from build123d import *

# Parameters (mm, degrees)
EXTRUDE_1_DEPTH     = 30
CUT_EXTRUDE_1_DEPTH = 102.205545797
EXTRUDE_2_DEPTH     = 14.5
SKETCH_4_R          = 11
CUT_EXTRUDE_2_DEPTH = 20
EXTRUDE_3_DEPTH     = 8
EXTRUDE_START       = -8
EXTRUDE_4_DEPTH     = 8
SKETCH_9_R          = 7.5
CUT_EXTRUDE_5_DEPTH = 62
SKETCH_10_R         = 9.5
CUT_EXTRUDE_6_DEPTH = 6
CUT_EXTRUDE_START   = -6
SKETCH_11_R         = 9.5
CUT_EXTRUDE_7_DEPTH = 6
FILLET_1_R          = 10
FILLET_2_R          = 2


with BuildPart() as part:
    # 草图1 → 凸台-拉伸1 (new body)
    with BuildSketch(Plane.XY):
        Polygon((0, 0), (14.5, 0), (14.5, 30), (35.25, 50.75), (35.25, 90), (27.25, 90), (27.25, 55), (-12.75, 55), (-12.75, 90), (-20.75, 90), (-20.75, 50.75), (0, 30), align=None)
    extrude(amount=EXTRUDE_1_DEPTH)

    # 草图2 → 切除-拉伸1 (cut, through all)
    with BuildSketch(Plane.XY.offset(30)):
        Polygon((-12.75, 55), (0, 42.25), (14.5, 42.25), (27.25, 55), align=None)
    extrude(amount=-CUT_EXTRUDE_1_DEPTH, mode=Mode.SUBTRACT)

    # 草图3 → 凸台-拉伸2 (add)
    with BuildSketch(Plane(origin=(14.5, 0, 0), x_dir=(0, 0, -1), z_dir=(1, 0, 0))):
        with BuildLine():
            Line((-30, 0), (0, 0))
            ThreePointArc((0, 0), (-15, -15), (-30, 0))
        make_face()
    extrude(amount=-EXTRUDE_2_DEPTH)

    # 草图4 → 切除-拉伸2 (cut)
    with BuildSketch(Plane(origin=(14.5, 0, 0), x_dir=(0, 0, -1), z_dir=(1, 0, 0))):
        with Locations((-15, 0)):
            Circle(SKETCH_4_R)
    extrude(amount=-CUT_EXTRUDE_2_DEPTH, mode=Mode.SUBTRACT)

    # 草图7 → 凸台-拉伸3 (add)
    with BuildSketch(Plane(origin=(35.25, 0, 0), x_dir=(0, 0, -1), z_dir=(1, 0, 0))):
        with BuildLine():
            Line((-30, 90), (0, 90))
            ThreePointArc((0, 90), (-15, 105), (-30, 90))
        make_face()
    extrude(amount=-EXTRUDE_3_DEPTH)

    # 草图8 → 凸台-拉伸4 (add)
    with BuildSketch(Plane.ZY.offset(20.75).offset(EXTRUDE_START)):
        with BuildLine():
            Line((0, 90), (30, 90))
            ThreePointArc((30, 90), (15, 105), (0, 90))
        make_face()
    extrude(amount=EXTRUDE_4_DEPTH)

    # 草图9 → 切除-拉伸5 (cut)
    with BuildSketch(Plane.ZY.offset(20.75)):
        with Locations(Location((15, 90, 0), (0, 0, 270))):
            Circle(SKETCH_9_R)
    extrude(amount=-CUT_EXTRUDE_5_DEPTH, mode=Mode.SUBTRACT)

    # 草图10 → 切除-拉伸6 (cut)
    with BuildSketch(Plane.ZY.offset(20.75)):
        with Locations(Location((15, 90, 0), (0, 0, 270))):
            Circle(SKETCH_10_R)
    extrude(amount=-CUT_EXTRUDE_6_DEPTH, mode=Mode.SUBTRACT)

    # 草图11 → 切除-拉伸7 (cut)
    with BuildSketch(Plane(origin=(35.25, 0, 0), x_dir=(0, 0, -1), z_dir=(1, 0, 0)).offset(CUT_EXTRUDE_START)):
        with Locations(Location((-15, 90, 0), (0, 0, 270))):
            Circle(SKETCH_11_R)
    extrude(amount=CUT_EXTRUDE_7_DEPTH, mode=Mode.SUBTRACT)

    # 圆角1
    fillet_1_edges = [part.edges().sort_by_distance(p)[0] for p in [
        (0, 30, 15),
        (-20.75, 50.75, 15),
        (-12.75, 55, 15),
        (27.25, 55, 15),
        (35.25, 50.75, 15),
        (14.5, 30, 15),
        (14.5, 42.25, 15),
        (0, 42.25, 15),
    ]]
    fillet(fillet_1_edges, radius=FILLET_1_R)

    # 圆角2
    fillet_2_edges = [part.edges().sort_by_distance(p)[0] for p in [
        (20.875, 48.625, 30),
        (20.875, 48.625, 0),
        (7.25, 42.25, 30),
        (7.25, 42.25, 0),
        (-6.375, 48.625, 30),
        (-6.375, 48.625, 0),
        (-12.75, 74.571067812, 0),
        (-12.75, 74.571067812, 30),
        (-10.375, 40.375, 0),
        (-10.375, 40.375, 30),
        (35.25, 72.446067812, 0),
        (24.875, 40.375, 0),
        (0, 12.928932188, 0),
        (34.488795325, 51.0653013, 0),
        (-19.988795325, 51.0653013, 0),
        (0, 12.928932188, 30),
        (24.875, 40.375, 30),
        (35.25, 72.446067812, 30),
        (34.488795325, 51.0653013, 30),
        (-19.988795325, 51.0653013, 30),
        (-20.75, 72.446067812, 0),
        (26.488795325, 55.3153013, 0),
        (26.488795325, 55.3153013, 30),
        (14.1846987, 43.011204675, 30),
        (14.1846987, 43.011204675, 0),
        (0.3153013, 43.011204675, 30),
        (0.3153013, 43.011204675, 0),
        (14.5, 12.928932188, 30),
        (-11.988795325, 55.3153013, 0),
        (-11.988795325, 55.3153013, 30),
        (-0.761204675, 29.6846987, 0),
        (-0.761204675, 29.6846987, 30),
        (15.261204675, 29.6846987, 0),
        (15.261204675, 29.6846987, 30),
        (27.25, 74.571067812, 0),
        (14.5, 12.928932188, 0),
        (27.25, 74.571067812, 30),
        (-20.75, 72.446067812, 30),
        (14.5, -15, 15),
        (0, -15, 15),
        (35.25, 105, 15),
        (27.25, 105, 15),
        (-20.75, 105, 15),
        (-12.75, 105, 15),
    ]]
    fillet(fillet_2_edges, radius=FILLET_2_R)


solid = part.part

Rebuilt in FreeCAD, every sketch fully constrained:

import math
import FreeCAD as App
import Part
import Sketcher

V = App.Vector


def edges_at(feature, points):
    """Names of the edges that pass closest to the given points."""
    edges = feature.Shape.Edges
    near = lambda p: min(range(len(edges)), key=lambda i: edges[i].distToShape(Part.Vertex(*p))[0])
    return sorted({f"Edge{near(p) + 1}" for p in points})


def add_polygon(sketch, points):
    """Adds a closed chain of lines whose ends are joined by coincident constraints."""
    first, n = sketch.GeometryCount, len(points)
    for a, b in zip(points, points[1:] + points[:1]):
        sketch.addGeometry(Part.LineSegment(App.Vector(*a, 0), App.Vector(*b, 0)), False)
    for i in range(n):
        sketch.addConstraint(Sketcher.Constraint("Coincident", first + i, 2, first + (i + 1) % n, 1))

doc = App.newDocument("Part")
body = doc.addObject("PartDesign::Body", "Body")

# Sketch on XY plane
sketch1 = body.newObject("Sketcher::SketchObject", "Sketch")
sketch1.AttachmentSupport = (doc.getObject("XY_Plane"), [""])
sketch1.MapMode = "FlatFace"
add_polygon(sketch1, [(0, 0), (14, 0), (14, 30), (35, 51), (35, 90), (27, 90), (27, 55), (-13, 55), (-13, 90), (-21, 90), (-21, 51), (0, 30)])  # lines 0-11
sketch1.addConstraint([
    Sketcher.Constraint("Horizontal", 0),
    Sketcher.Constraint("Vertical", 1),
    Sketcher.Constraint("Vertical", 3),
    Sketcher.Constraint("Horizontal", 4),
    Sketcher.Constraint("Vertical", 5),
    Sketcher.Constraint("Horizontal", 6),
    Sketcher.Constraint("Vertical", 7),
    Sketcher.Constraint("Horizontal", 8),
    Sketcher.Constraint("Vertical", 9),
    Sketcher.Constraint("Vertical", 11),
    Sketcher.Constraint("Coincident", 11, 2, -1, 1),
    Sketcher.Constraint("Perpendicular", 2, 10),
    Sketcher.Constraint("Horizontal", 4, 2, 7, 2),
    Sketcher.Constraint("Horizontal", 2, 2, 9, 2),
    Sketcher.Constraint("Horizontal", 1, 2, 10, 2),
    Sketcher.Constraint("Equal", 4, 8),
    Sketcher.Constraint("Equal", 2, 10),
    Sketcher.Constraint("DistanceX", 4, 2, 4, 1, 8.0),
    Sketcher.Constraint("DistanceX", 6, 2, 6, 1, 40.0),
    Sketcher.Constraint("DistanceY", 1, 1, 1, 2, 30.0),
    Sketcher.Constraint("DistanceY", 5, 2, 5, 1, 35.0),
    Sketcher.Constraint("DistanceX", 0, 1, 0, 2, 14.5),
    Sketcher.Constraint("DistanceY", -1, 1, 3, 2, 90.0),
])
pad1 = body.newObject("PartDesign::Pad", "Pad")
pad1.Profile = sketch1
pad1.Length = 30

# Sketch on XY plane
sketch2 = body.newObject("Sketcher::SketchObject", "Sketch001")
sketch2.AttachmentSupport = (doc.getObject("XY_Plane"), [""])
sketch2.MapMode = "FlatFace"
sketch2.AttachmentOffset = App.Placement(V(0, 0, 30), App.Rotation())
add_polygon(sketch2, [(-13, 55), (0, 42), (14, 42), (27, 55)])  # lines 0-3
sketch2.addConstraint([
    Sketcher.Constraint("Horizontal", 1),
    Sketcher.Constraint("Horizontal", 3),
    Sketcher.Constraint("PointOnObject", 0, 2, -2),
    Sketcher.Constraint("Perpendicular", 0, 2),
    Sketcher.Constraint("Equal", 0, 2),
    Sketcher.Constraint("DistanceX", 3, 2, 3, 1, 40.0),
    Sketcher.Constraint("DistanceX", 1, 1, 1, 2, 14.5),
    Sketcher.Constraint("DistanceY", -1, 1, 2, 2, 55.0),
])
pocket1 = body.newObject("PartDesign::Pocket", "Pocket")
pocket1.Profile = sketch2
pocket1.Type = "ThroughAll"

# Sketch on YZ plane
sketch3 = body.newObject("Sketcher::SketchObject", "Sketch002")
sketch3.AttachmentSupport = (doc.getObject("YZ_Plane"), [""])
sketch3.MapMode = "FlatFace"
sketch3.AttachmentOffset = App.Placement(V(0, 0, 14.5), App.Rotation())
sketch3.addGeometry([
    Part.LineSegment(V(0, 0, 0), V(0, 30, 0)),
    Part.ArcOfCircle(Part.Circle(V(0, 15, 0), V(0, 0, 1), 15), math.radians(90), math.radians(270)),
], False)
sketch3.addConstraint([
    Sketcher.Constraint("Coincident", 0, 1, 1, 2),
    Sketcher.Constraint("Coincident", 1, 1, 0, 2),
    Sketcher.Constraint("Vertical", 0),
    Sketcher.Constraint("Coincident", 0, 1, -1, 1),
    Sketcher.Constraint("PointOnObject", 1, 3, -2),
    Sketcher.Constraint("Radius", 1, 15.0),
])
pad2 = body.newObject("PartDesign::Pad", "Pad001")
pad2.Profile = sketch3
pad2.Length = 14.5
pad2.Reversed = True

# Sketch on YZ plane
sketch4 = body.newObject("Sketcher::SketchObject", "Sketch003")
sketch4.AttachmentSupport = (doc.getObject("YZ_Plane"), [""])
sketch4.MapMode = "FlatFace"
sketch4.AttachmentOffset = App.Placement(V(0, 0, 14.5), App.Rotation())
sketch4.addGeometry(Part.Circle(V(0, 15, 0), V(0, 0, 1), 11), False)
sketch4.addConstraint([
    Sketcher.Constraint("PointOnObject", 0, 3, -2),
    Sketcher.Constraint("Diameter", 0, 22.0),
    Sketcher.Constraint("DistanceY", -1, 1, 0, 3, 15.0),
])
pocket2 = body.newObject("PartDesign::Pocket", "Pocket001")
pocket2.Profile = sketch4
pocket2.Length = 20

# Sketch on YZ plane
sketch5 = body.newObject("Sketcher::SketchObject", "Sketch004")
sketch5.AttachmentSupport = (doc.getObject("YZ_Plane"), [""])
sketch5.MapMode = "FlatFace"
sketch5.AttachmentOffset = App.Placement(V(0, 0, 35.25), App.Rotation())
sketch5.addGeometry([
    Part.LineSegment(V(90, 30, 0), V(90, 0, 0)),
    Part.ArcOfCircle(Part.Circle(V(90, 15, 0), V(0, 0, 1), 15), math.radians(-90), math.radians(90)),
], False)
sketch5.addConstraint([
    Sketcher.Constraint("Coincident", 0, 1, 1, 2),
    Sketcher.Constraint("Coincident", 1, 1, 0, 2),
    Sketcher.Constraint("Vertical", 0),
    Sketcher.Constraint("PointOnObject", 1, 1, -1),
    Sketcher.Constraint("Vertical", 1, 3, 0, 1),
    Sketcher.Constraint("Radius", 1, 15.0),
    Sketcher.Constraint("DistanceX", -1, 1, 1, 3, 90.0),
])
pad3 = body.newObject("PartDesign::Pad", "Pad002")
pad3.Profile = sketch5
pad3.Length = 8
pad3.Reversed = True

# Sketch on YZ plane
sketch6 = body.newObject("Sketcher::SketchObject", "Sketch005")
sketch6.AttachmentSupport = (doc.getObject("YZ_Plane"), [""])
sketch6.MapMode = "FlatFace"
sketch6.AttachmentOffset = App.Placement(V(0, 0, -12.75), App.Rotation())
sketch6.addGeometry([
    Part.LineSegment(V(90, 0, 0), V(90, 30, 0)),
    Part.ArcOfCircle(Part.Circle(V(90, 15, 0), V(0, 0, 1), 15), math.radians(-90), math.radians(90)),
], False)
sketch6.addConstraint([
    Sketcher.Constraint("Coincident", 0, 1, 1, 1),
    Sketcher.Constraint("Coincident", 1, 2, 0, 2),
    Sketcher.Constraint("Vertical", 0),
    Sketcher.Constraint("PointOnObject", 0, 1, -1),
    Sketcher.Constraint("Vertical", 1, 3, 0, 1),
    Sketcher.Constraint("Radius", 1, 15.0),
    Sketcher.Constraint("DistanceX", -1, 1, 1, 3, 90.0),
])
pad4 = body.newObject("PartDesign::Pad", "Pad003")
pad4.Profile = sketch6
pad4.Length = 8
pad4.Reversed = True

# Sketch on YZ plane
sketch7 = body.newObject("Sketcher::SketchObject", "Sketch006")
sketch7.AttachmentSupport = (doc.getObject("YZ_Plane"), [""])
sketch7.MapMode = "FlatFace"
sketch7.AttachmentOffset = App.Placement(V(0, 0, -20.75), App.Rotation())
sketch7.addGeometry(Part.Circle(V(90, 15, 0), V(0, 0, 1), 8), False)
sketch7.addConstraint([
    Sketcher.Constraint("Diameter", 0, 15.0),
    Sketcher.Constraint("DistanceX", -1, 1, 0, 3, 90.0),
    Sketcher.Constraint("DistanceY", -1, 1, 0, 3, 15.0),
])
pocket3 = body.newObject("PartDesign::Pocket", "Pocket002")
pocket3.Profile = sketch7
pocket3.Length = 62
pocket3.Reversed = True

# Sketch on YZ plane
sketch8 = body.newObject("Sketcher::SketchObject", "Sketch007")
sketch8.AttachmentSupport = (doc.getObject("YZ_Plane"), [""])
sketch8.MapMode = "FlatFace"
sketch8.AttachmentOffset = App.Placement(V(0, 0, -20.75), App.Rotation())
sketch8.addGeometry(Part.Circle(V(90, 15, 0), V(0, 0, 1), 10), False)
sketch8.addConstraint([
    Sketcher.Constraint("Diameter", 0, 19.0),
    Sketcher.Constraint("DistanceX", -1, 1, 0, 3, 90.0),
    Sketcher.Constraint("DistanceY", -1, 1, 0, 3, 15.0),
])
pocket4 = body.newObject("PartDesign::Pocket", "Pocket003")
pocket4.Profile = sketch8
pocket4.Length = 6
pocket4.Reversed = True

# Sketch on YZ plane
sketch9 = body.newObject("Sketcher::SketchObject", "Sketch008")
sketch9.AttachmentSupport = (doc.getObject("YZ_Plane"), [""])
sketch9.MapMode = "FlatFace"
sketch9.AttachmentOffset = App.Placement(V(0, 0, 29.25), App.Rotation())
sketch9.addGeometry(Part.Circle(V(90, 15, 0), V(0, 0, 1), 10), False)
sketch9.addConstraint([
    Sketcher.Constraint("Diameter", 0, 19.0),
    Sketcher.Constraint("DistanceX", -1, 1, 0, 3, 90.0),
    Sketcher.Constraint("DistanceY", -1, 1, 0, 3, 15.0),
])
pocket5 = body.newObject("PartDesign::Pocket", "Pocket004")
pocket5.Profile = sketch9
pocket5.Length = 6
pocket5.Reversed = True
doc.recompute()

fillet = body.newObject("PartDesign::Fillet", "Fillet")
fillet.Base = (pocket5, edges_at(pocket5, [
    (0, 30, 15),
    (-20.75, 50.75, 15),
    (-12.75, 55, 15),
    (27.25, 55, 15),
    (35.25, 50.75, 15),
    (14.5, 30, 15),
    (14.5, 42.25, 15),
    (0, 42.25, 15),
]))
fillet.Radius = 10
doc.recompute()

fillet2 = body.newObject("PartDesign::Fillet", "Fillet001")
fillet2.Base = (fillet, edges_at(fillet, [
    (20.875, 48.625, 30),
    (20.875, 48.625, 0),
    (7.25, 42.25, 30),
    (7.25, 42.25, 0),
    (-6.375, 48.625, 30),
    (-6.375, 48.625, 0),
    (-12.75, 74.571, 0),
    (-12.75, 74.571, 30),
    (-10.375, 40.375, 0),
    (-10.375, 40.375, 30),
    (35.25, 72.446, 0),
    (24.875, 40.375, 0),
    (0, 12.929, 0),
    (34.489, 51.065, 0),
    (-19.989, 51.065, 0),
    (0, 12.929, 30),
    (24.875, 40.375, 30),
    (35.25, 72.446, 30),
    (34.489, 51.065, 30),
    (-19.989, 51.065, 30),
    (-20.75, 72.446, 0),
    (26.489, 55.315, 0),
    (26.489, 55.315, 30),
    (14.185, 43.011, 30),
    (14.185, 43.011, 0),
    (0.315, 43.011, 30),
    (0.315, 43.011, 0),
    (14.5, 12.929, 30),
    (-11.989, 55.315, 0),
    (-11.989, 55.315, 30),
    (-0.761, 29.685, 0),
    (-0.761, 29.685, 30),
    (15.261, 29.685, 0),
    (15.261, 29.685, 30),
    (27.25, 74.571, 0),
    (14.5, 12.929, 0),
    (27.25, 74.571, 30),
    (-20.75, 72.446, 30),
    (14.5, -15, 15),
    (0, -15, 15),
    (35.25, 105, 15),
    (27.25, 105, 15),
    (-20.75, 105, 15),
    (-12.75, 105, 15),
]))
fillet2.Radius = 2

doc.recompute()
